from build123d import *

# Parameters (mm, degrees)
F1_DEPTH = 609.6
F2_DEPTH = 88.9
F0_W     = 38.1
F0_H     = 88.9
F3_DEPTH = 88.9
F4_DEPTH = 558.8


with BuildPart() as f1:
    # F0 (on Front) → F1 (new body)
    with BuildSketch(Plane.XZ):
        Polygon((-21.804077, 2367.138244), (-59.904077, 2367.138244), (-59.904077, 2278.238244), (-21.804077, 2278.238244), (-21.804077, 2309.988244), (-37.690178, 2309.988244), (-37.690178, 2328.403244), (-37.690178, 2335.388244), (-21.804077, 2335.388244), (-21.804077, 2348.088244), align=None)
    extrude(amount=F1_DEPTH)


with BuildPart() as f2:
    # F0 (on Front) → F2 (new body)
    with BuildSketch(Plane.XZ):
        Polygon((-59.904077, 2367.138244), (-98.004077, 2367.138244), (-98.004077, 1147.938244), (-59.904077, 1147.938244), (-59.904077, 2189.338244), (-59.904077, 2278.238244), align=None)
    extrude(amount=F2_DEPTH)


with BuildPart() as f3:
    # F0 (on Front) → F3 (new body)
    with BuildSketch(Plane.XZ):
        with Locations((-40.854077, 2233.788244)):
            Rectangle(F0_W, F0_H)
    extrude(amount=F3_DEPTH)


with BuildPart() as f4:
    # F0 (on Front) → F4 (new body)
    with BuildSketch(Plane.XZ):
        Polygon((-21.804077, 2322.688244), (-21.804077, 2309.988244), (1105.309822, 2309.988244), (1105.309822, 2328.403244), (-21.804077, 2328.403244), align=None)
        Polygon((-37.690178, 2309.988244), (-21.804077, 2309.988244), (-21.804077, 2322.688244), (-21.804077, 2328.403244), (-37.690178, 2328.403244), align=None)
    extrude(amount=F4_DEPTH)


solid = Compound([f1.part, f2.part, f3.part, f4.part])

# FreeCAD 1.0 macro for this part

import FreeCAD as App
import Part
import Sketcher

V = App.Vector
Q = App.Units.Quantity


def add_polygon(sketch, points):
    """Adds a closed chain of lines whose ends are joined by coincident constraints."""
    first, n = sketch.GeometryCount, len(points)
    for a, b in zip(points, points[1:] + points[:1]):
        sketch.addGeometry(Part.LineSegment(App.Vector(*a, 0), App.Vector(*b, 0)), False)
    for i in range(n):
        sketch.addConstraint(Sketcher.Constraint("Coincident", first + i, 2, first + (i + 1) % n, 1))

doc = App.newDocument("Part")
params = doc.addObject("Spreadsheet::Sheet", "Params")
for row, (alias, value) in enumerate([
    ("sketch1_height", "1 in"),
    ("sketch1_width", "1.5 in"),
    ("sketch1_height2", "3.5 in"),
    ("pad1_length", "24 in"),
    ("sketch2_height", "48 in"),
    ("sketch2_width", "1.5 in"),
    ("pad2_length", "3.5 in"),
    ("sketch3_width", "1.5 in"),
    ("sketch3_height", "3.5 in"),
    ("pad3_length", "3.5 in"),
    ("sketch4_width", "45 in"),
    ("sketch4_height", "0.725 in"),
    ("pad4_length", "22 in"),
], start=1):
    params.set(f"A{row}", alias)
    params.set(f"B{row}", "=" + value)
    params.setAlias(f"B{row}", alias)

body = doc.addObject("PartDesign::Body", "Body")

# Sketch on XZ plane
sketch1 = doc.addObject("Sketcher::SketchObject", "Sketch")
body.addObject(sketch1)
sketch1.AttachmentSupport = (doc.XZ_Plane, [""])
sketch1.MapMode = "FlatFace"
add_polygon(sketch1, [(-22, 2367), (-60, 2367), (-60, 2278), (-22, 2278), (-22, 2310), (-38, 2310), (-38, 2335), (-22, 2335)])  # lines 0-7
sketch1.addConstraint(Sketcher.Constraint("Horizontal", 0))
sketch1.addConstraint(Sketcher.Constraint("Vertical", 1))
sketch1.addConstraint(Sketcher.Constraint("Horizontal", 2))
sketch1.addConstraint(Sketcher.Constraint("Vertical", 3))
sketch1.addConstraint(Sketcher.Constraint("Horizontal", 4))
sketch1.addConstraint(Sketcher.Constraint("Vertical", 5))
sketch1.addConstraint(Sketcher.Constraint("Horizontal", 6))
sketch1.addConstraint(Sketcher.Constraint("Vertical", 7))
sketch1.addConstraint(Sketcher.Constraint("Vertical", 3, 2, 6, 2))
sketch1.addConstraint(Sketcher.Constraint("Equal", 3, 7))
sketch1.addConstraint(Sketcher.Constraint("DistanceY", 5, 1, 5, 2, Q("1 in")))
sketch1.addConstraint(Sketcher.Constraint("DistanceX", 0, 2, 0, 1, Q("1.5 in")))
sketch1.addConstraint(Sketcher.Constraint("DistanceY", 1, 2, 1, 1, Q("3.5 in")))
sketch1.addConstraint(Sketcher.Constraint("DistanceX", 4, 2, 4, 1, Q("15.886101 mm")))
sketch1.addConstraint(Sketcher.Constraint("DistanceX", 4, 2, -1, 1, Q("37.690178 mm")))
sketch1.addConstraint(Sketcher.Constraint("DistanceY", -1, 1, 0, 2, Q("2367.138244 mm")))
sketch1.setExpression("Constraints[18]", "Params.sketch1_height")
sketch1.setExpression("Constraints[19]", "Params.sketch1_width")
sketch1.setExpression("Constraints[20]", "Params.sketch1_height2")
pad1 = doc.addObject("PartDesign::Pad", "Pad")
body.addObject(pad1)
pad1.Profile = sketch1
pad1.setExpression("Length", "Params.pad1_length")
body2 = doc.addObject("PartDesign::Body", "Body001")

# Sketch on XZ plane
sketch2 = doc.addObject("Sketcher::SketchObject", "Sketch001")
body2.addObject(sketch2)
sketch2.AttachmentSupport = (doc.getObject("XZ_Plane001"), [""])
sketch2.MapMode = "FlatFace"
add_polygon(sketch2, [(-60, 2367), (-98, 2367), (-98, 1148), (-60, 1148)])  # lines 0-3
sketch2.addConstraint(Sketcher.Constraint("Horizontal", 0))
sketch2.addConstraint(Sketcher.Constraint("Vertical", 1))
sketch2.addConstraint(Sketcher.Constraint("Horizontal", 2))
sketch2.addConstraint(Sketcher.Constraint("Vertical", 3))
sketch2.addConstraint(Sketcher.Constraint("DistanceY", 1, 2, 1, 1, Q("48 in")))
sketch2.addConstraint(Sketcher.Constraint("DistanceX", 0, 2, 0, 1, Q("1.5 in")))
sketch2.addConstraint(Sketcher.Constraint("DistanceX", 0, 2, -1, 1, Q("98.004077 mm")))
sketch2.addConstraint(Sketcher.Constraint("DistanceY", -1, 1, 0, 2, Q("2367.138244 mm")))
sketch2.setExpression("Constraints[8]", "Params.sketch2_height")
sketch2.setExpression("Constraints[9]", "Params.sketch2_width")
pad2 = doc.addObject("PartDesign::Pad", "Pad001")
body2.addObject(pad2)
pad2.Profile = sketch2
pad2.setExpression("Length", "Params.pad2_length")
body3 = doc.addObject("PartDesign::Body", "Body002")

# Sketch on XZ plane
sketch3 = doc.addObject("Sketcher::SketchObject", "Sketch002")
body3.addObject(sketch3)
sketch3.AttachmentSupport = (doc.getObject("XZ_Plane002"), [""])
sketch3.MapMode = "FlatFace"
add_polygon(sketch3, [(-60, 2278), (-60, 2189), (-22, 2189), (-22, 2278)])  # lines 0-3
sketch3.addConstraint(Sketcher.Constraint("Vertical", 0))
sketch3.addConstraint(Sketcher.Constraint("Horizontal", 1))
sketch3.addConstraint(Sketcher.Constraint("Vertical", 2))
sketch3.addConstraint(Sketcher.Constraint("Horizontal", 3))
sketch3.addConstraint(Sketcher.Constraint("DistanceX", 1, 1, 1, 2, Q("1.5 in")))
sketch3.addConstraint(Sketcher.Constraint("DistanceY", 0, 2, 0, 1, Q("3.5 in")))
sketch3.addConstraint(Sketcher.Constraint("DistanceX", 0, 2, -1, 1, Q("59.904077 mm")))
sketch3.addConstraint(Sketcher.Constraint("DistanceY", -1, 1, 0, 2, Q("2189.338244 mm")))
sketch3.setExpression("Constraints[8]", "Params.sketch3_width")
sketch3.setExpression("Constraints[9]", "Params.sketch3_height")
pad3 = doc.addObject("PartDesign::Pad", "Pad002")
body3.addObject(pad3)
pad3.Profile = sketch3
pad3.setExpression("Length", "Params.pad3_length")
body4 = doc.addObject("PartDesign::Body", "Body003")

# Sketch on XZ plane
sketch4 = doc.addObject("Sketcher::SketchObject", "Sketch003")
body4.addObject(sketch4)
sketch4.AttachmentSupport = (doc.getObject("XZ_Plane003"), [""])
sketch4.MapMode = "FlatFace"
add_polygon(sketch4, [(1105, 2310), (1105, 2328), (-38, 2328), (-38, 2310)])  # lines 0-3
sketch4.addConstraint(Sketcher.Constraint("Vertical", 0))
sketch4.addConstraint(Sketcher.Constraint("Horizontal", 1))
sketch4.addConstraint(Sketcher.Constraint("Vertical", 2))
sketch4.addConstraint(Sketcher.Constraint("Horizontal", 3))
sketch4.addConstraint(Sketcher.Constraint("DistanceX", 1, 2, 1, 1, Q("45 in")))
sketch4.addConstraint(Sketcher.Constraint("DistanceY", 0, 1, 0, 2, Q("0.725 in")))
sketch4.addConstraint(Sketcher.Constraint("DistanceX", -1, 1, 0, 2, Q("1105.309822 mm")))
sketch4.addConstraint(Sketcher.Constraint("DistanceY", -1, 1, 0, 2, Q("2328.403244 mm")))
sketch4.setExpression("Constraints[8]", "Params.sketch4_width")
sketch4.setExpression("Constraints[9]", "Params.sketch4_height")
pad4 = doc.addObject("PartDesign::Pad", "Pad003")
body4.addObject(pad4)
pad4.Profile = sketch4
pad4.setExpression("Length", "Params.pad4_length")

doc.recompute()
